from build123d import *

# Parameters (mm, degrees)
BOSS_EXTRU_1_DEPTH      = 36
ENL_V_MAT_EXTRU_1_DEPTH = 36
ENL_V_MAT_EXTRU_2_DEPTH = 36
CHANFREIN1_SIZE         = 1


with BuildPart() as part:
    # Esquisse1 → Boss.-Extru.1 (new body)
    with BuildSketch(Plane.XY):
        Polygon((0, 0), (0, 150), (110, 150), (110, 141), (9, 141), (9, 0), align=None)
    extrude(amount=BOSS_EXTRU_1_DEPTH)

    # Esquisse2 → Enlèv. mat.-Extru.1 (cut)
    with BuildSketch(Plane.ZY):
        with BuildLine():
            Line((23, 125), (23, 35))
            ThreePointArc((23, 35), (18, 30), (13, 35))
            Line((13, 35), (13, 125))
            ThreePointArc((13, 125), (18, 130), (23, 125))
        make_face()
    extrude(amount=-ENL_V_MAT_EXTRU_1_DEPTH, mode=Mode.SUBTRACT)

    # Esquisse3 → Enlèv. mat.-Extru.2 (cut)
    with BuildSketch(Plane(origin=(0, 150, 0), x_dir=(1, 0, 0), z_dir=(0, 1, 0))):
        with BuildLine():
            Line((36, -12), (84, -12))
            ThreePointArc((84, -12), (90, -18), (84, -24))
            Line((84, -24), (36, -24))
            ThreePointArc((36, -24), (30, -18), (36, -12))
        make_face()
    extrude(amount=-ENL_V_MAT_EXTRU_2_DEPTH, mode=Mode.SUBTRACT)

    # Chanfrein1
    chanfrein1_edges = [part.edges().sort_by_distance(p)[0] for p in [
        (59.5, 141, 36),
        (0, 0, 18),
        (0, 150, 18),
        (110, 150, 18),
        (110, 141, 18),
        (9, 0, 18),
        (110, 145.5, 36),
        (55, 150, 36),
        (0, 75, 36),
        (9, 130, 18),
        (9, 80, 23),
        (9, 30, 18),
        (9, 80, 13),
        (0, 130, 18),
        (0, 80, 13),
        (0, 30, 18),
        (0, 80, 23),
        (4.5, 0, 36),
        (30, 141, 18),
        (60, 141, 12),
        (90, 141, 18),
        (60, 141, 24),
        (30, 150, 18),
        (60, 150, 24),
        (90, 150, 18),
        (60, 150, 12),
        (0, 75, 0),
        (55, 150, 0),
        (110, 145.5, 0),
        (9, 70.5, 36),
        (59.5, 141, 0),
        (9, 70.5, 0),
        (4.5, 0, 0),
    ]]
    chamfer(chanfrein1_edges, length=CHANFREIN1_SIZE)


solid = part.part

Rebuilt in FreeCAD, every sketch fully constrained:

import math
import FreeCAD as App
import Part
import Sketcher

V = App.Vector
Q = App.Units.Quantity


def edges_at(feature, points):
    """Names of the edges that pass closest to the given points."""
    edges = feature.Shape.Edges
    near = lambda p: min(range(len(edges)), key=lambda i: edges[i].distToShape(Part.Vertex(*p))[0])
    return sorted({f"Edge{near(p) + 1}" for p in points})

doc = App.newDocument("Part")
body = doc.addObject("PartDesign::Body", "Body")

sketch1 = body.newObject("Sketcher::SketchObject", "Sketch")
sketch1.AttachmentSupport = (doc.getObject("XY_Plane"), [""])
sketch1.MapMode = "FlatFace"
sketch1.addGeometry([
    Part.LineSegment(V(0, 150, 0), V(0, 0, 0)),
    Part.LineSegment(V(0, 0, 0), V(9, 0, 0)),
    Part.LineSegment(V(9, 0, 0), V(9, 141, 0)),
    Part.LineSegment(V(9, 141, 0), V(110, 141, 0)),
    Part.LineSegment(V(110, 141, 0), V(110, 150, 0)),
    Part.LineSegment(V(110, 150, 0), V(0, 150, 0)),
], False)
sketch1.addConstraint([
    Sketcher.Constraint("Coincident", 0, 2, 1, 1),
    Sketcher.Constraint("Coincident", 1, 2, 2, 1),
    Sketcher.Constraint("Coincident", 2, 2, 3, 1),
    Sketcher.Constraint("Coincident", 3, 2, 4, 1),
    Sketcher.Constraint("Coincident", 4, 2, 5, 1),
    Sketcher.Constraint("Coincident", 5, 2, 0, 1),
    Sketcher.Constraint("Vertical", 0),
    Sketcher.Constraint("Horizontal", 1),
    Sketcher.Constraint("Vertical", 2),
    Sketcher.Constraint("Horizontal", 3),
    Sketcher.Constraint("Vertical", 4),
    Sketcher.Constraint("Horizontal", 5),
    Sketcher.Constraint("Coincident", 0, 2, -1, 1),
    Sketcher.Constraint("Equal", 1, 4),
    Sketcher.Constraint("DistanceX", 1, 1, 1, 2, Q("9 mm")),
    Sketcher.Constraint("DistanceX", 3, 1, 3, 2, Q("101 mm")),
    Sketcher.Constraint("DistanceY", 0, 2, 0, 1, Q("150 mm")),
])
pad1 = body.newObject("PartDesign::Pad", "Pad")
pad1.Profile = sketch1
pad1.Length = 36

sketch2 = body.newObject("Sketcher::SketchObject", "Sketch001")
sketch2.AttachmentSupport = (doc.getObject("YZ_Plane"), [""])
sketch2.MapMode = "FlatFace"
sketch2.addGeometry([
    Part.LineSegment(V(35, 23, 0), V(125, 23, 0)),
    Part.ArcOfCircle(Part.Circle(V(125, 18, 0), V(0, 0, 1), 5), math.radians(-90), math.radians(90)),
    Part.LineSegment(V(125, 13, 0), V(35, 13, 0)),
    Part.ArcOfCircle(Part.Circle(V(35, 18, 0), V(0, 0, 1), 5), math.radians(90), math.radians(270)),
], False)
sketch2.addConstraint([
    Sketcher.Constraint("Tangent", 0, 2, 1, 2),
    Sketcher.Constraint("Tangent", 1, 1, 2, 1),
    Sketcher.Constraint("Tangent", 2, 2, 3, 2),
    Sketcher.Constraint("Tangent", 3, 1, 0, 1),
    Sketcher.Constraint("Horizontal", 0),
    Sketcher.Constraint("Horizontal", 2),
    Sketcher.Constraint("Radius", 1, Q("5 mm")),
    Sketcher.Constraint("DistanceX", 0, 1, 0, 2, Q("90 mm")),
    Sketcher.Constraint("DistanceX", -1, 1, 1, 3, Q("125 mm")),
    Sketcher.Constraint("DistanceY", -1, 1, 1, 3, Q("18 mm")),
])
pocket1 = body.newObject("PartDesign::Pocket", "Pocket")
pocket1.Profile = sketch2
pocket1.Length = 36
pocket1.Reversed = True

sketch3 = body.newObject("Sketcher::SketchObject", "Sketch002")
sketch3.AttachmentSupport = (doc.getObject("XZ_Plane"), [""])
sketch3.MapMode = "FlatFace"
sketch3.AttachmentOffset = App.Placement(V(0, 0, -150), App.Rotation())
sketch3.addGeometry([
    Part.LineSegment(V(84, 12, 0), V(36, 12, 0)),
    Part.ArcOfCircle(Part.Circle(V(36, 18, 0), V(0, 0, 1), 6), math.radians(90), math.radians(270)),
    Part.LineSegment(V(36, 24, 0), V(84, 24, 0)),
    Part.ArcOfCircle(Part.Circle(V(84, 18, 0), V(0, 0, 1), 6), math.radians(-90), math.radians(90)),
], False)
sketch3.addConstraint([
    Sketcher.Constraint("Tangent", 0, 2, 1, 2),
    Sketcher.Constraint("Tangent", 1, 1, 2, 1),
    Sketcher.Constraint("Tangent", 2, 2, 3, 2),
    Sketcher.Constraint("Tangent", 3, 1, 0, 1),
    Sketcher.Constraint("Horizontal", 0),
    Sketcher.Constraint("Horizontal", 2),
    Sketcher.Constraint("Radius", 1, Q("6 mm")),
    Sketcher.Constraint("DistanceX", 0, 2, 0, 1, Q("48 mm")),
    Sketcher.Constraint("DistanceX", -1, 1, 1, 3, Q("36 mm")),
    Sketcher.Constraint("DistanceY", -1, 1, 1, 3, Q("18 mm")),
])
pocket2 = body.newObject("PartDesign::Pocket", "Pocket001")
pocket2.Profile = sketch3
pocket2.Length = 36
pocket2.Reversed = True
doc.recompute()

chamfer = body.newObject("PartDesign::Chamfer", "Chamfer")
chamfer.Base = (pocket2, edges_at(pocket2, [
    (59.5, 141, 36),
    (0, 0, 18),
    (0, 150, 18),
    (110, 150, 18),
    (110, 141, 18),
    (9, 0, 18),
    (110, 145.5, 36),
    (55, 150, 36),
    (0, 75, 36),
    (9, 130, 18),
    (9, 80, 23),
    (9, 30, 18),
    (9, 80, 13),
    (0, 130, 18),
    (0, 80, 13),
    (0, 30, 18),
    (0, 80, 23),
    (4.5, 0, 36),
    (30, 141, 18),
    (60, 141, 12),
    (90, 141, 18),
    (60, 141, 24),
    (30, 150, 18),
    (60, 150, 24),
    (90, 150, 18),
    (60, 150, 12),
    (0, 75, 0),
    (55, 150, 0),
    (110, 145.5, 0),
    (9, 70.5, 36),
    (59.5, 141, 0),
    (9, 70.5, 0),
    (4.5, 0, 0),
]))
chamfer.Size = 1

doc.recompute()
